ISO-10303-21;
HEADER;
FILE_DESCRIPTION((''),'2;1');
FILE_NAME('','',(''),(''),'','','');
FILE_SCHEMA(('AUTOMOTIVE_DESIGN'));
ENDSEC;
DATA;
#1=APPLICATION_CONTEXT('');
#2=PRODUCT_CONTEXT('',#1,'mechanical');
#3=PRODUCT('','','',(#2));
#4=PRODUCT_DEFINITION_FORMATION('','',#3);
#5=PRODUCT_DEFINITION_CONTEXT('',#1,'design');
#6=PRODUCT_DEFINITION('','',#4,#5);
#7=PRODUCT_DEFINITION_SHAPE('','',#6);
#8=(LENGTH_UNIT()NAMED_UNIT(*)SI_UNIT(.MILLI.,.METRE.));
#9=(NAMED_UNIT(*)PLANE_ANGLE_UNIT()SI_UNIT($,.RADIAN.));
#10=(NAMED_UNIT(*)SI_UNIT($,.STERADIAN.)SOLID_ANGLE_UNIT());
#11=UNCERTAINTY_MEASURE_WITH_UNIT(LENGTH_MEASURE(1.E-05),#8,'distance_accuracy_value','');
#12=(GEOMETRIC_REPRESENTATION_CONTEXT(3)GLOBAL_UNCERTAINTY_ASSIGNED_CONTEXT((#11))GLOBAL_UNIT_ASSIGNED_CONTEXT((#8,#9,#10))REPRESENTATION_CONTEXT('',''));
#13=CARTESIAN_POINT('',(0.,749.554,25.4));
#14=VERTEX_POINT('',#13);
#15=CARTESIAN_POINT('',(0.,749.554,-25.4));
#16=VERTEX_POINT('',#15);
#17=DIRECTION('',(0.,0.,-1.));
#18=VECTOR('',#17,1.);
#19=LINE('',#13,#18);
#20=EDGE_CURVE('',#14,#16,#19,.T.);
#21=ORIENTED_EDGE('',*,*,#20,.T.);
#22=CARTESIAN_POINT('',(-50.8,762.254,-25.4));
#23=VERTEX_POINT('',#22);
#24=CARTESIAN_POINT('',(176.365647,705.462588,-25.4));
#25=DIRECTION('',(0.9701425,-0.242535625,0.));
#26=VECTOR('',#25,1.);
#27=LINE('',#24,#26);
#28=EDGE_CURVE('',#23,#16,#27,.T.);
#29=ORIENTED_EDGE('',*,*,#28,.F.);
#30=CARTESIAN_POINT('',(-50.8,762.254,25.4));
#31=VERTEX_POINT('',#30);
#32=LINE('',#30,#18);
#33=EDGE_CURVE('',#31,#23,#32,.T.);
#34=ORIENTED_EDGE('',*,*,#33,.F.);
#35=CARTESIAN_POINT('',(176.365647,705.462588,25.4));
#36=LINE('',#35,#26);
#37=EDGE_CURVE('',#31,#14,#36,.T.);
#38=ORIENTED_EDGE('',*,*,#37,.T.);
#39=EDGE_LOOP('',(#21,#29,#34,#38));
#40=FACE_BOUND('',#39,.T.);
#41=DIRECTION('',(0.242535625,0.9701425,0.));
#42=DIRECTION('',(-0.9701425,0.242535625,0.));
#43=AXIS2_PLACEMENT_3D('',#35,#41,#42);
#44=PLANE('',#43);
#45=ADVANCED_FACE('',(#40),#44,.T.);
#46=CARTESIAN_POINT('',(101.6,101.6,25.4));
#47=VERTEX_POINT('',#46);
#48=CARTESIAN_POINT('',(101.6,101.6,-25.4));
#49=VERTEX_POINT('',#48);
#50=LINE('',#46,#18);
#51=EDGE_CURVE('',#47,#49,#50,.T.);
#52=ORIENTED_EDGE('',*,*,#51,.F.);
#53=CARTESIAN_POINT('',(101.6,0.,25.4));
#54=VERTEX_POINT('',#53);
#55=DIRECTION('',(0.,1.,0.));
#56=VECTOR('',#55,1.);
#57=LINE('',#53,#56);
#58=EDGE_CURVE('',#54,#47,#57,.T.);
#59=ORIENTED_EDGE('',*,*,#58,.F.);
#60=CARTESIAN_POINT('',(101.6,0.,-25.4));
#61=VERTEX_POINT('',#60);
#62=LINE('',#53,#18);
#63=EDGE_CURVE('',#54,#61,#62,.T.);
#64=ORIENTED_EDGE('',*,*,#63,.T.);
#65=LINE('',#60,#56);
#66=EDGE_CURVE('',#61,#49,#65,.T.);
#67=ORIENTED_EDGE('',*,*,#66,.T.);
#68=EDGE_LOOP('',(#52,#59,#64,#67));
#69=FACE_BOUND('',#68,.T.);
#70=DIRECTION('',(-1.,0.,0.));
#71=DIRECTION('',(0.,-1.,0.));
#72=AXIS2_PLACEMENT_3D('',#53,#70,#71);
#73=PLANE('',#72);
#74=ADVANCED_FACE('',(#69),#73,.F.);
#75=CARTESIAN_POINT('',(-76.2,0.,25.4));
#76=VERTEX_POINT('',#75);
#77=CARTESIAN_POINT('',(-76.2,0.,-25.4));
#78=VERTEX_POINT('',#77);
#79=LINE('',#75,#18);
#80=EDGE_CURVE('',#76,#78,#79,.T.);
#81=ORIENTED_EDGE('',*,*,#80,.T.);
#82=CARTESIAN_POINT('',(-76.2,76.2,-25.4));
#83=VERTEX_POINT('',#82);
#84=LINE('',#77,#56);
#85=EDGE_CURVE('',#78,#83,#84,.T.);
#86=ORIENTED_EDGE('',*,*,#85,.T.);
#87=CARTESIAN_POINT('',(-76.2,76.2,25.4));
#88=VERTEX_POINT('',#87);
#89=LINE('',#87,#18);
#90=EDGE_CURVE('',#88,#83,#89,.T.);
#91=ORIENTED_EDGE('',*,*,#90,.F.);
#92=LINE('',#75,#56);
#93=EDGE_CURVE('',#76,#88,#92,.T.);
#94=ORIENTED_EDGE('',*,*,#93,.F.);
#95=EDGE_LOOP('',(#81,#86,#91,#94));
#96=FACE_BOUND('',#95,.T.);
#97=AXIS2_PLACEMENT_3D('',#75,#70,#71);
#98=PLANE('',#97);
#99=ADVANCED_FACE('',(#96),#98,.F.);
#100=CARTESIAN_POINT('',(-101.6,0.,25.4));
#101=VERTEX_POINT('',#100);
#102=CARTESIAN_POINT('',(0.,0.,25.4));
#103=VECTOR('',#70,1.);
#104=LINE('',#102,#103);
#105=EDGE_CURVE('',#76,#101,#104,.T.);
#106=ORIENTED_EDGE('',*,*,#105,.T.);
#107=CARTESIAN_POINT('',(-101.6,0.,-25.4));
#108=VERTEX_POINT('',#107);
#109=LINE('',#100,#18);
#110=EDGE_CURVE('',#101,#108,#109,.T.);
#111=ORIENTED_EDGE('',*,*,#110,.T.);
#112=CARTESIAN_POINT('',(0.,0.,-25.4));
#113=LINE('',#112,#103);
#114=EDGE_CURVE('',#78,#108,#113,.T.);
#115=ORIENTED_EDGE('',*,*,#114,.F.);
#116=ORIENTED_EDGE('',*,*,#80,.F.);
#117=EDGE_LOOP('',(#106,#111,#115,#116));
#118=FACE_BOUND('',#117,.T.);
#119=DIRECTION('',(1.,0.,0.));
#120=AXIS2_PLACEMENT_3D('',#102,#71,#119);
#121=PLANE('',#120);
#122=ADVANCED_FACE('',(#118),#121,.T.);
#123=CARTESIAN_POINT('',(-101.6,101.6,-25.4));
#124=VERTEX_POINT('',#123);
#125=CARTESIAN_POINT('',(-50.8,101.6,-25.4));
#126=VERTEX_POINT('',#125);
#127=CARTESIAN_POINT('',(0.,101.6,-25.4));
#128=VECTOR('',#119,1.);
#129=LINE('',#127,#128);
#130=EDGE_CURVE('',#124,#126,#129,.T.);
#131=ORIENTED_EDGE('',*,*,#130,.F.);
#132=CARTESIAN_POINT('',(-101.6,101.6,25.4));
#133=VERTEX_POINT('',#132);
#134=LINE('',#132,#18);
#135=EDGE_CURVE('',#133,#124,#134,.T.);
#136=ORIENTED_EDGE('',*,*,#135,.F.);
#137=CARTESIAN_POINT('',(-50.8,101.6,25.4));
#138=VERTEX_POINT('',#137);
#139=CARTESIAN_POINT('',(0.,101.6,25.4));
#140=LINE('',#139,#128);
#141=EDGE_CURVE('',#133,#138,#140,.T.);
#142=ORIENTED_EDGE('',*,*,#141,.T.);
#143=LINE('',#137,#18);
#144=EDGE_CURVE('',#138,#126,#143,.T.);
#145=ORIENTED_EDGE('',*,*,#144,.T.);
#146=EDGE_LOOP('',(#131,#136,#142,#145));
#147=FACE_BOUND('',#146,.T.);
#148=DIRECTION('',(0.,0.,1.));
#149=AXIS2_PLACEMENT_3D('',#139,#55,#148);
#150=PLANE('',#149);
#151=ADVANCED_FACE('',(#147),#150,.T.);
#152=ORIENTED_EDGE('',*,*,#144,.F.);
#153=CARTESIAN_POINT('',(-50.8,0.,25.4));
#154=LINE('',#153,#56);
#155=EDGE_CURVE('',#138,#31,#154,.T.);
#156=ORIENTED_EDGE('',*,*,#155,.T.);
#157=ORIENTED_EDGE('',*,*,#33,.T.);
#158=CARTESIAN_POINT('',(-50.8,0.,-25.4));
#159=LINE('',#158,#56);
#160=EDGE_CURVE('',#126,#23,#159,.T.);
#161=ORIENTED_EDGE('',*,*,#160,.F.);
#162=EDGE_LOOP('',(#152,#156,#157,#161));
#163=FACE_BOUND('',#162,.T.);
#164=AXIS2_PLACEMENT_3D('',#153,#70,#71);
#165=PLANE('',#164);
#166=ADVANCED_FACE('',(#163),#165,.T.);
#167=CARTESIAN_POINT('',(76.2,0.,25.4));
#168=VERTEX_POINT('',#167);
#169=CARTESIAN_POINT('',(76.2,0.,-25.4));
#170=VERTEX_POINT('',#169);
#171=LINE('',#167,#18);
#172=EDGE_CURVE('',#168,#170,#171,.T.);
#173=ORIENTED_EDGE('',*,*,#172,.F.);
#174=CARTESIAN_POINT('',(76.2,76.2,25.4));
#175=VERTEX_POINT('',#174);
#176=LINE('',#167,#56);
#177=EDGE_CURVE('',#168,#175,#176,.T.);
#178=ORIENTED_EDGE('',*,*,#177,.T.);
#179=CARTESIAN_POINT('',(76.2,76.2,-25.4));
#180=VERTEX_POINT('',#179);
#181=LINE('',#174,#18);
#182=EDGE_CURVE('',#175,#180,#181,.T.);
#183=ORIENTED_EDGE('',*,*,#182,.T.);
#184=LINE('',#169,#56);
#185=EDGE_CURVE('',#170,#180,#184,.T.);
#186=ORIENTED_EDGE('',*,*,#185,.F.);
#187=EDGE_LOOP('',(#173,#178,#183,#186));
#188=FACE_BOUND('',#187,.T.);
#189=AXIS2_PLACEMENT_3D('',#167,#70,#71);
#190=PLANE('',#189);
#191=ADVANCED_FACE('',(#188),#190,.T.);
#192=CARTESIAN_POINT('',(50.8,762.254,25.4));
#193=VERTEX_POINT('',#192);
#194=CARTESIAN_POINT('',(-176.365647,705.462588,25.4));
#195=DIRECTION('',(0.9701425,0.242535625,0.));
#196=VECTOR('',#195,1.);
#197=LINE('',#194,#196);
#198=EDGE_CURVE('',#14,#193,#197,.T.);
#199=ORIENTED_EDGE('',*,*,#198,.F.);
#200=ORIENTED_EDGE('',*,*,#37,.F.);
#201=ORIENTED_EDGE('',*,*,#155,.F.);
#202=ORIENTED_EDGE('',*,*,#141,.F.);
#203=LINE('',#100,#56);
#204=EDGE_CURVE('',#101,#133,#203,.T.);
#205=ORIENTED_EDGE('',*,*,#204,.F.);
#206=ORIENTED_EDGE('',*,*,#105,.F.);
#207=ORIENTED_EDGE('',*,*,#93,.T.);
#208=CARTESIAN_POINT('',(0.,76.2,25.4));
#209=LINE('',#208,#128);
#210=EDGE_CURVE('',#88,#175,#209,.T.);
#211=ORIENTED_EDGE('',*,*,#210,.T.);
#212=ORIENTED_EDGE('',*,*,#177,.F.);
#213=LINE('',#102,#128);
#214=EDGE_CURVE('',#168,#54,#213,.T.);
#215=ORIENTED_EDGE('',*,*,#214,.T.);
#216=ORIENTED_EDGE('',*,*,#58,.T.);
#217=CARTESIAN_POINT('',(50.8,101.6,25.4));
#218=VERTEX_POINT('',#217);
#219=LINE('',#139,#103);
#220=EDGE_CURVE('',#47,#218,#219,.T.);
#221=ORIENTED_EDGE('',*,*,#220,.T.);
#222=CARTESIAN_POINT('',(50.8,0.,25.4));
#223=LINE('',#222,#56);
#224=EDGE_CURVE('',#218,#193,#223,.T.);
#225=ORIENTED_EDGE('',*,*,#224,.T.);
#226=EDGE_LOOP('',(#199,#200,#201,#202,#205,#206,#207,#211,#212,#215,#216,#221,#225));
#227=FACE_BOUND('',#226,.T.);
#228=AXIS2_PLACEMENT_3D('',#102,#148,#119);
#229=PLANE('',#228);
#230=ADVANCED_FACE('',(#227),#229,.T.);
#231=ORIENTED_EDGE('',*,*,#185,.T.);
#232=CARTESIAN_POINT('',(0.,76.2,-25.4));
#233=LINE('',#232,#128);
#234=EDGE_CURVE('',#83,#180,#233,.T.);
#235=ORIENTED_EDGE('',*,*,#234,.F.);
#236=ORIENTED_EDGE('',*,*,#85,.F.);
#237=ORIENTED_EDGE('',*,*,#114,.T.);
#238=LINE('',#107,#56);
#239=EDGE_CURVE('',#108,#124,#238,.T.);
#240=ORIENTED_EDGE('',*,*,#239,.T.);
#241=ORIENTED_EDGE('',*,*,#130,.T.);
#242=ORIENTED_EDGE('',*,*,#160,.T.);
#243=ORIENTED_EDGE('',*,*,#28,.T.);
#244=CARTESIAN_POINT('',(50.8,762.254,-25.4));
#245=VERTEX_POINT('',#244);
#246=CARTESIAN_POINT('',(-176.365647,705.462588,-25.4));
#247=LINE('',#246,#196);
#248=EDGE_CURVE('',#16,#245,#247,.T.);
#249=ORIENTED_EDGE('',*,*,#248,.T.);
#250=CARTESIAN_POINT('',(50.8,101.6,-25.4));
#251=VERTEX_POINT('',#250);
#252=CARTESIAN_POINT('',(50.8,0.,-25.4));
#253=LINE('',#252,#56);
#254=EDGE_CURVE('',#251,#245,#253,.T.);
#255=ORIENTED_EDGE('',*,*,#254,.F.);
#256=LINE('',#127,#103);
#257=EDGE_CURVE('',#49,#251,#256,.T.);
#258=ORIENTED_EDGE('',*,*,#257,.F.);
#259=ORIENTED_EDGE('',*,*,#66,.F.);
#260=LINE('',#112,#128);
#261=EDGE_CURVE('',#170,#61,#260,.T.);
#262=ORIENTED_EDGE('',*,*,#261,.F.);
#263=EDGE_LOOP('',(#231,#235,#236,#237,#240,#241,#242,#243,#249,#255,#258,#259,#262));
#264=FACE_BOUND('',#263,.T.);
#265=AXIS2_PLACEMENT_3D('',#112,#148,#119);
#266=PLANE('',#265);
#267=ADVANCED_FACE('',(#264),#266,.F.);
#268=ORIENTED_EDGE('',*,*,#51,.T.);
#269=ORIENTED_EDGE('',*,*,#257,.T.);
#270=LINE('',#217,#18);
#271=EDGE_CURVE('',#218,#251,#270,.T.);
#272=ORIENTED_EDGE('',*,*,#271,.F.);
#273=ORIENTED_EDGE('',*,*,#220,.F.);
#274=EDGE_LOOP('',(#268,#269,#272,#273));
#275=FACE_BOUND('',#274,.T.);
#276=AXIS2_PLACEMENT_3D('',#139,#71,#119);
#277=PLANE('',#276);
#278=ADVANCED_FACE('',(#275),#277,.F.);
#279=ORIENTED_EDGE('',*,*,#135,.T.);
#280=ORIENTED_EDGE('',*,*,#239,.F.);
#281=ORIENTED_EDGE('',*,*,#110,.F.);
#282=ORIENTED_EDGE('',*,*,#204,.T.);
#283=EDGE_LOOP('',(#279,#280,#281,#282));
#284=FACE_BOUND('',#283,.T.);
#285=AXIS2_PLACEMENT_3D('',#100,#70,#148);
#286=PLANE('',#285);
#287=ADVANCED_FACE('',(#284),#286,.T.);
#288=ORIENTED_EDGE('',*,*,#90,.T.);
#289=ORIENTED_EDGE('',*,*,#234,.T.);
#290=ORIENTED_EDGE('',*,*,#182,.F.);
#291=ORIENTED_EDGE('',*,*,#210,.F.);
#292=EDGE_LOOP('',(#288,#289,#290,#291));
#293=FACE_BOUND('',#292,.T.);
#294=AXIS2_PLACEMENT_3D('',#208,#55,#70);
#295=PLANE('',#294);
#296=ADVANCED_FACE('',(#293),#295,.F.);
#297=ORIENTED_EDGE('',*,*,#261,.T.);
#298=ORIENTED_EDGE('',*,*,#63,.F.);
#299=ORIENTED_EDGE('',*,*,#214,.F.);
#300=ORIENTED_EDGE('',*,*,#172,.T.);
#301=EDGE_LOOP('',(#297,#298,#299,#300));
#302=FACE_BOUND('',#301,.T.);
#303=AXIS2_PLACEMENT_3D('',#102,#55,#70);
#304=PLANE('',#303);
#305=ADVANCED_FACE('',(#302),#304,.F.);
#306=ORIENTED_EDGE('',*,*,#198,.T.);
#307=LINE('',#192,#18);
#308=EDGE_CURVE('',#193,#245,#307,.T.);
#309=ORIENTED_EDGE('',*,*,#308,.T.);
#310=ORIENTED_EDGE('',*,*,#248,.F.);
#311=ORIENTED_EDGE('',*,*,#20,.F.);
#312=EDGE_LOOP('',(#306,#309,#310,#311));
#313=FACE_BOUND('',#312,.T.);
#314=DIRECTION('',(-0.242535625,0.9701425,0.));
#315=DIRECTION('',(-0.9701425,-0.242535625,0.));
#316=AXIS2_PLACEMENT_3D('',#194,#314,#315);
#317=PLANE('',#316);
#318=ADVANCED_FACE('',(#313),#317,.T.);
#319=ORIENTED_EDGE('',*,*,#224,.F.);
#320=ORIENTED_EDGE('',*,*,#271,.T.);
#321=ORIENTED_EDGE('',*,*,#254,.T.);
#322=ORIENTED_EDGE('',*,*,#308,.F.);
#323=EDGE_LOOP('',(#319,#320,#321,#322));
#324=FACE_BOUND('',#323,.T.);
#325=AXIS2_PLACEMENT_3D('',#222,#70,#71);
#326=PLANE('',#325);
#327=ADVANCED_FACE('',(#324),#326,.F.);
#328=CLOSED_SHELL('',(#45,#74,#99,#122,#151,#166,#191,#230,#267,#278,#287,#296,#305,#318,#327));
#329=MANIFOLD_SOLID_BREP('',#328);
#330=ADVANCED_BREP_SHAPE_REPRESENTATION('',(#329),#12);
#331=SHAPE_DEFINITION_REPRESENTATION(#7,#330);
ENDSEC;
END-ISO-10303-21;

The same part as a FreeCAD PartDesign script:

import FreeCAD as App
import Part
import Sketcher
Q = App.Units.Quantity


def add_polygon(sketch, points):
    """Adds a closed chain of lines whose ends are joined by coincident constraints."""
    first, n = sketch.GeometryCount, len(points)
    for a, b in zip(points, points[1:] + points[:1]):
        sketch.addGeometry(Part.LineSegment(App.Vector(*a, 0), App.Vector(*b, 0)), False)
    for i in range(n):
        sketch.addConstraint(Sketcher.Constraint("Coincident", first + i, 2, first + (i + 1) % n, 1))

doc = App.newDocument("Part")
body = doc.addObject("PartDesign::Body", "Body")

# Sketch on XY plane
sketch1 = body.newObject("Sketcher::SketchObject", "Sketch")
sketch1.AttachmentSupport = (doc.getObject("XY_Plane"), [""])
sketch1.MapMode = "FlatFace"
add_polygon(sketch1, [(0, 749.554), (-50.8, 762.254), (-50.8, 101.6), (-101.6, 101.6), (-101.6, 0), (-76.2, 0), (-76.2, 76.2), (76.2, 76.2), (76.2, 0), (101.6, 0), (101.6, 101.6), (50.8, 101.6), (50.8, 762.254)])  # lines 0-12
sketch1.addConstraint(Sketcher.Constraint("Vertical", 1))
sketch1.addConstraint(Sketcher.Constraint("Horizontal", 2))
sketch1.addConstraint(Sketcher.Constraint("Vertical", 3))
sketch1.addConstraint(Sketcher.Constraint("Horizontal", 4))
sketch1.addConstraint(Sketcher.Constraint("Vertical", 5))
sketch1.addConstraint(Sketcher.Constraint("Horizontal", 6))
sketch1.addConstraint(Sketcher.Constraint("Vertical", 7))
sketch1.addConstraint(Sketcher.Constraint("Horizontal", 8))
sketch1.addConstraint(Sketcher.Constraint("Vertical", 9))
sketch1.addConstraint(Sketcher.Constraint("Horizontal", 10))
sketch1.addConstraint(Sketcher.Constraint("Vertical", 11))
sketch1.addConstraint(Sketcher.Constraint("Symmetric", 4, 2, 7, 2, -1, 1))
sketch1.addConstraint(Sketcher.Constraint("Symmetric", 3, 2, 8, 2, -2))
sketch1.addConstraint(Sketcher.Constraint("Symmetric", 1, 2, 10, 2, -2))
sketch1.addConstraint(Sketcher.Constraint("PointOnObject", 12, 2, -2))
sketch1.addConstraint(Sketcher.Constraint("Horizontal", 0, 2, 11, 2))
sketch1.addConstraint(Sketcher.Constraint("DistanceX", 2, 2, 2, 1, Q("2 in")))
sketch1.addConstraint(Sketcher.Constraint("DistanceX", 4, 1, 4, 2, Q("1 in")))
sketch1.addConstraint(Sketcher.Constraint("DistanceX", 6, 1, 6, 2, Q("6 in")))
sketch1.addConstraint(Sketcher.Constraint("DistanceY", 3, 2, 3, 1, Q("4 in")))
sketch1.addConstraint(Sketcher.Constraint("DistanceY", 5, 1, 5, 2, Q("3 in")))
sketch1.addConstraint(Sketcher.Constraint("DistanceY", 1, 2, 1, 1, Q("26.01 in")))
sketch1.addConstraint(Sketcher.Constraint("DistanceY", 12, 2, 0, 2, Q("0.5 in")))
pad1 = body.newObject("PartDesign::Pad", "Pad")
pad1.Profile = sketch1
pad1.Length = Q("2 in")
pad1.Midplane = True

doc.recompute()
